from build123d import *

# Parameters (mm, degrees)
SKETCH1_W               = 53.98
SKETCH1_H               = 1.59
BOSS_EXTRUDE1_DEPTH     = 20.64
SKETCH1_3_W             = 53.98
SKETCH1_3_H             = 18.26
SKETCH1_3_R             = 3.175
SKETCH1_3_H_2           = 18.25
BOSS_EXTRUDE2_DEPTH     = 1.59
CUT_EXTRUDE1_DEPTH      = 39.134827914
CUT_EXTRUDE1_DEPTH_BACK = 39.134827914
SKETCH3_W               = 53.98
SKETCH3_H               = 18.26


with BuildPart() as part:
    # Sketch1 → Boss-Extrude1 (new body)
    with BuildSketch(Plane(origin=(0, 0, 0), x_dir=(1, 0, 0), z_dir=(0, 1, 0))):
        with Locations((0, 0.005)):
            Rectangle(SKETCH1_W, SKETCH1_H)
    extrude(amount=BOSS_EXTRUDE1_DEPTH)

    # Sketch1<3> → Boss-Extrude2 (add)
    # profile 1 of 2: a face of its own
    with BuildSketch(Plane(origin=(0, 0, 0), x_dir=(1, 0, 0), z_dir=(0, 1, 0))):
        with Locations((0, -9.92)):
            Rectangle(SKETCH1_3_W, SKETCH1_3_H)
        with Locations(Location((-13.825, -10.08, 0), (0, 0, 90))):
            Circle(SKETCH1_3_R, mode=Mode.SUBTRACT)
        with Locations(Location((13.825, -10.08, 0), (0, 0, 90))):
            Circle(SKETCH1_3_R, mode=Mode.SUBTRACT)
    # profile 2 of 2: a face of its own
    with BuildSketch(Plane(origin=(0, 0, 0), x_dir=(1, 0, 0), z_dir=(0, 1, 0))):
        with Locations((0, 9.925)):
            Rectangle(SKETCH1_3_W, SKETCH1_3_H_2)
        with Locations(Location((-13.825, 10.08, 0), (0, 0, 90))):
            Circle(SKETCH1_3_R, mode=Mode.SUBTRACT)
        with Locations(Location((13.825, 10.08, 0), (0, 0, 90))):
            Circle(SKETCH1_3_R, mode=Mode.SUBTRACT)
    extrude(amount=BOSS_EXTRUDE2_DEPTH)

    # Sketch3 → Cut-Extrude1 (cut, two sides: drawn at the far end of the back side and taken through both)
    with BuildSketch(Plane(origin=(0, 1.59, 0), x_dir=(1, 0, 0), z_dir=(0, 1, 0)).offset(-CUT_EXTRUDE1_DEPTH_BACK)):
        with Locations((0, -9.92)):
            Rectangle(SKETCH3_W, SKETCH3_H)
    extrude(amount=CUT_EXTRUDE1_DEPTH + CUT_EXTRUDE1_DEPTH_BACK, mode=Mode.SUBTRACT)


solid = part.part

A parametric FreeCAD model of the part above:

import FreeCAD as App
import Part
import Sketcher

V = App.Vector
Q = App.Units.Quantity


def add_polygon(sketch, points):
    """Adds a closed chain of lines whose ends are joined by coincident constraints."""
    first, n = sketch.GeometryCount, len(points)
    for a, b in zip(points, points[1:] + points[:1]):
        sketch.addGeometry(Part.LineSegment(App.Vector(*a, 0), App.Vector(*b, 0)), False)
    for i in range(n):
        sketch.addConstraint(Sketcher.Constraint("Coincident", first + i, 2, first + (i + 1) % n, 1))

doc = App.newDocument("Part")
body = doc.addObject("PartDesign::Body", "Body")

# Sketch on XZ plane
sketch1 = doc.addObject("Sketcher::SketchObject", "Sketch")
body.addObject(sketch1)
sketch1.AttachmentSupport = (doc.XZ_Plane, [""])
sketch1.MapMode = "FlatFace"
add_polygon(sketch1, [(-27, -0.8), (-27, 0.8), (27, 0.8), (27, -0.8)])  # lines 0-3
sketch1.addConstraint(Sketcher.Constraint("Vertical", 0))
sketch1.addConstraint(Sketcher.Constraint("Horizontal", 1))
sketch1.addConstraint(Sketcher.Constraint("Vertical", 2))
sketch1.addConstraint(Sketcher.Constraint("Horizontal", 3))
sketch1.addConstraint(Sketcher.Constraint("DistanceX", 1, 1, 1, 2, Q("53.98 mm")))
sketch1.addConstraint(Sketcher.Constraint("DistanceY", 0, 1, 0, 2, Q("1.59 mm")))
sketch1.addConstraint(Sketcher.Constraint("DistanceX", 0, 2, -1, 1, Q("26.99 mm")))
sketch1.addConstraint(Sketcher.Constraint("DistanceY", -1, 1, 0, 2, Q("0.79 mm")))
pad1 = doc.addObject("PartDesign::Pad", "Pad")
body.addObject(pad1)
pad1.Profile = sketch1
pad1.Length = 20.64
pad1.Reversed = True

# Sketch on XZ plane
sketch2 = doc.addObject("Sketcher::SketchObject", "Sketch001")
body.addObject(sketch2)
sketch2.AttachmentSupport = (doc.XZ_Plane, [""])
sketch2.MapMode = "FlatFace"
add_polygon(sketch2, [(-27, 0.8), (-27, 19.1), (27, 19.1), (27, 0.8)])  # lines 0-3
sketch2.addGeometry(Part.Circle(V(-13.8, 10.1, 0), V(0, 0, 1), 3.2), False)  # 4
sketch2.addGeometry(Part.Circle(V(13.8, 10.1, 0), V(0, 0, 1), 3.2), False)  # 5
add_polygon(sketch2, [(-27, -19.1), (-27, -0.8), (27, -0.8), (27, -19.1)])  # lines 6-9
sketch2.addGeometry(Part.Circle(V(-13.8, -10.1, 0), V(0, 0, 1), 3.2), False)  # 10
sketch2.addGeometry(Part.Circle(V(13.8, -10.1, 0), V(0, 0, 1), 3.2), False)  # 11
sketch2.addConstraint(Sketcher.Constraint("Vertical", 0))
sketch2.addConstraint(Sketcher.Constraint("Horizontal", 1))
sketch2.addConstraint(Sketcher.Constraint("Vertical", 2))
sketch2.addConstraint(Sketcher.Constraint("Horizontal", 3))
sketch2.addConstraint(Sketcher.Constraint("Vertical", 6))
sketch2.addConstraint(Sketcher.Constraint("Horizontal", 7))
sketch2.addConstraint(Sketcher.Constraint("Vertical", 8))
sketch2.addConstraint(Sketcher.Constraint("Horizontal", 9))
sketch2.addConstraint(Sketcher.Constraint("Equal", 4, 5))
sketch2.addConstraint(Sketcher.Constraint("Equal", 5, 10))
sketch2.addConstraint(Sketcher.Constraint("Equal", 10, 11))
sketch2.addConstraint(Sketcher.Constraint("Symmetric", 5, 3, 10, 3, -1, 1))
sketch2.addConstraint(Sketcher.Constraint("Symmetric", 4, 3, 11, 3, -1, 1))
sketch2.addConstraint(Sketcher.Constraint("Symmetric", 0, 2, 8, 2, -1, 1))
sketch2.addConstraint(Sketcher.Constraint("Symmetric", 4, 3, 5, 3, -2))
sketch2.addConstraint(Sketcher.Constraint("Vertical", 3, 2, 6, 2))
sketch2.addConstraint(Sketcher.Constraint("Vertical", 2, 2, 7, 2))
sketch2.addConstraint(Sketcher.Constraint("Diameter", 4, Q("0.25 in")))
sketch2.addConstraint(Sketcher.Constraint("DistanceY", 8, 2, 1, 2, Q("1.5 in")))
sketch2.addConstraint(Sketcher.Constraint("DistanceX", 1, 1, 1, 2, Q("53.98 mm")))
sketch2.addConstraint(Sketcher.Constraint("DistanceY", 0, 1, 0, 2, Q("18.26 mm")))
sketch2.addConstraint(Sketcher.Constraint("DistanceY", 6, 1, 6, 2, Q("18.25 mm")))
sketch2.addConstraint(Sketcher.Constraint("DistanceX", 4, 3, -1, 1, Q("13.825 mm")))
sketch2.addConstraint(Sketcher.Constraint("DistanceY", -1, 1, 4, 3, Q("10.08 mm")))
pad2 = doc.addObject("PartDesign::Pad", "Pad001")
body.addObject(pad2)
pad2.Profile = sketch2
pad2.Length = 1.59
pad2.Reversed = True

# Sketch on XZ plane
sketch3 = doc.addObject("Sketcher::SketchObject", "Sketch002")
body.addObject(sketch3)
sketch3.AttachmentSupport = (doc.XZ_Plane, [""])
sketch3.MapMode = "FlatFace"
sketch3.AttachmentOffset = App.Placement(V(0, 0, -1.59), App.Rotation())
add_polygon(sketch3, [(-27, 1), (-27, 19), (27, 19), (27, 1)])  # lines 0-3
sketch3.addConstraint(Sketcher.Constraint("Vertical", 0))
sketch3.addConstraint(Sketcher.Constraint("Horizontal", 1))
sketch3.addConstraint(Sketcher.Constraint("Vertical", 2))
sketch3.addConstraint(Sketcher.Constraint("Horizontal", 3))
sketch3.addConstraint(Sketcher.Constraint("DistanceY", -1, 1, 0, 2, Q("0.75 in")))
sketch3.addConstraint(Sketcher.Constraint("DistanceX", 1, 1, 1, 2, Q("53.98 mm")))
sketch3.addConstraint(Sketcher.Constraint("DistanceY", 0, 1, 0, 2, Q("18.26 mm")))
sketch3.addConstraint(Sketcher.Constraint("DistanceX", 0, 2, -1, 1, Q("26.99 mm")))
pocket1 = doc.addObject("PartDesign::Pocket", "Pocket")
body.addObject(pocket1)
pocket1.Profile = sketch3
pocket1.Type = "ThroughAll"
pocket1.Midplane = True

doc.recompute()
